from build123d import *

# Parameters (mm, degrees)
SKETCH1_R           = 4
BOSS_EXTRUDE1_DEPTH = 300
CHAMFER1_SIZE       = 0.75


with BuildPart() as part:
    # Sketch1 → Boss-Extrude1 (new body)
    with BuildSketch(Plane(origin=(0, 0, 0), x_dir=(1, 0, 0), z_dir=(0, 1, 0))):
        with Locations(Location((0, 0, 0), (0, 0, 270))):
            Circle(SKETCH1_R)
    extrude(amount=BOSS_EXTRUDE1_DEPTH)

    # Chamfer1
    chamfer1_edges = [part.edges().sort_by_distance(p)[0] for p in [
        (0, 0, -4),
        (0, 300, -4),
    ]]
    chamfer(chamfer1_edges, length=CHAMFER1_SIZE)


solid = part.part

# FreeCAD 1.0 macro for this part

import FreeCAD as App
import Part
import Sketcher
from FreeCAD import Vector
Q = App.Units.Quantity


def edges_at(feature, points):
    """Names of the edges that pass closest to the given points."""
    edges = feature.Shape.Edges
    near = lambda p: min(range(len(edges)), key=lambda i: edges[i].distToShape(Part.Vertex(*p))[0])
    return sorted({f"Edge{near(p) + 1}" for p in points})

doc = App.newDocument("Part")
body = doc.addObject("PartDesign::Body", "Body")

# Sketch on XZ plane
sketch1 = body.newObject("Sketcher::SketchObject", "Sketch")
sketch1.AttachmentSupport = (doc.getObject("XZ_Plane"), [""])
sketch1.MapMode = "FlatFace"
sketch1.addGeometry(Part.Circle(Vector(0, 0, 0), Vector(0, 0, 1), 4), False)
sketch1.addConstraint([
    Sketcher.Constraint("Coincident", 0, 3, -1, 1),
    Sketcher.Constraint("Diameter", 0, Q("8 mm")),
])
pad1 = body.newObject("PartDesign::Pad", "Pad")
pad1.Profile = sketch1
pad1.Length = 300
pad1.Reversed = True
doc.recompute()

chamfer = body.newObject("PartDesign::Chamfer", "Chamfer")
chamfer.Base = (pad1, edges_at(pad1, [(0, 0, -4), (0, 300, -4)]))
chamfer.Size = 0.75

doc.recompute()
